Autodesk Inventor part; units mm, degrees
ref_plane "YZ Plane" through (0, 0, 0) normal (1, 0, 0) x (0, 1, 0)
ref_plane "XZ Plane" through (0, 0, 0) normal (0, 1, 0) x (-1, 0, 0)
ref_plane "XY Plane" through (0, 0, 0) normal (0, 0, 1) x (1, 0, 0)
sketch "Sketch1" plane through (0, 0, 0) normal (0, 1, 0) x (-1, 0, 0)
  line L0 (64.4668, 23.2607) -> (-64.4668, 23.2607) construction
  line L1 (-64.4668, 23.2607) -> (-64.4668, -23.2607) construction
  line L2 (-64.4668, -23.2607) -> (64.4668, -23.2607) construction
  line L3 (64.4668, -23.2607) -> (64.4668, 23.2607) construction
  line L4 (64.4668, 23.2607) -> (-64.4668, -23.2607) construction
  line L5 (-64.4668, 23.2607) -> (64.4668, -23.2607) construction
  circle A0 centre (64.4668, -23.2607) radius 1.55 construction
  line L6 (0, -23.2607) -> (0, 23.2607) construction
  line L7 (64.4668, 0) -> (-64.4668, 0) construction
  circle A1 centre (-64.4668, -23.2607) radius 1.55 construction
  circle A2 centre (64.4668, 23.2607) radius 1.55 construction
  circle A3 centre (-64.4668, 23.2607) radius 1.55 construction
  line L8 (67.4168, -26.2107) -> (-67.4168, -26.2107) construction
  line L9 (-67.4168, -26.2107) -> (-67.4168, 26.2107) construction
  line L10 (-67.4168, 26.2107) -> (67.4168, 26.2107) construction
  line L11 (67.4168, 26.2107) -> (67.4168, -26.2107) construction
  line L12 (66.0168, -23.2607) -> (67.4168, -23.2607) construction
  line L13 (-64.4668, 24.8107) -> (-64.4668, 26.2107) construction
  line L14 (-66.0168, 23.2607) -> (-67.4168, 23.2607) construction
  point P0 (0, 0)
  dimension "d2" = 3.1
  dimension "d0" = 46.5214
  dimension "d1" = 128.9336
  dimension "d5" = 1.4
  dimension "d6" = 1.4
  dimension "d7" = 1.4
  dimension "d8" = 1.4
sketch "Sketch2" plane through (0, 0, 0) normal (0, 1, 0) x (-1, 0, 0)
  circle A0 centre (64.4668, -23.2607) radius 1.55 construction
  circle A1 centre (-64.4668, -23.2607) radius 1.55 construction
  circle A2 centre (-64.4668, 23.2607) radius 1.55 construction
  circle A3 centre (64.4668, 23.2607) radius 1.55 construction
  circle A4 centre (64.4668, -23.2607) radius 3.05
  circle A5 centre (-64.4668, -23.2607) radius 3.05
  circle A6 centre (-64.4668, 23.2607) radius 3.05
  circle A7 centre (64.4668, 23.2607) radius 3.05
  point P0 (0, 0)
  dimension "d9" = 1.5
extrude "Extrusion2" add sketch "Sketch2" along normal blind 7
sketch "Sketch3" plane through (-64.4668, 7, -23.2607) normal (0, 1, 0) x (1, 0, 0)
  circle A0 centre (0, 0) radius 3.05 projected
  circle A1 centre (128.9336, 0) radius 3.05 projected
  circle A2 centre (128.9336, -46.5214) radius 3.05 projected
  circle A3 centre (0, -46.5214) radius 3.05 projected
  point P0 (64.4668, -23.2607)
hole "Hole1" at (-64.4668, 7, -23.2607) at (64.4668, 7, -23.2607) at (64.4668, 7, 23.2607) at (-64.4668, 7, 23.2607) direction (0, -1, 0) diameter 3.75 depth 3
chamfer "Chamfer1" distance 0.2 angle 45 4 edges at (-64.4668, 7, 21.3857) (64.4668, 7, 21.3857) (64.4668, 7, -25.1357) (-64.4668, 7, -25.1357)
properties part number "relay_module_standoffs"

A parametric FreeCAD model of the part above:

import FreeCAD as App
import Part
import Sketcher
from FreeCAD import Vector


def edges_at(feature, points):
    """Names of the edges that pass closest to the given points."""
    edges = feature.Shape.Edges
    near = lambda p: min(range(len(edges)), key=lambda i: edges[i].distToShape(Part.Vertex(*p))[0])
    return sorted({f"Edge{near(p) + 1}" for p in points})

doc = App.newDocument("Part")
body = doc.addObject("PartDesign::Body", "Body")
body.AllowCompound = True

# Sketch on XZ plane
sketch1 = body.newObject("Sketcher::SketchObject", "Sketch")
sketch1.AttachmentSupport = (doc.getObject("XZ_Plane"), [""])
sketch1.MapMode = "FlatFace"
sketch1.addGeometry([
    Part.Circle(Vector(-64.5, -23.3, 0), Vector(0, 0, 1), 3),
    Part.Circle(Vector(64.5, -23.3, 0), Vector(0, 0, 1), 3),
    Part.Circle(Vector(64.5, 23.3, 0), Vector(0, 0, 1), 3),
    Part.Circle(Vector(-64.5, 23.3, 0), Vector(0, 0, 1), 3),
], False)
sketch1.addConstraint([
    Sketcher.Constraint("Equal", 0, 1),
    Sketcher.Constraint("Equal", 1, 2),
    Sketcher.Constraint("Equal", 2, 3),
    Sketcher.Constraint("Symmetric", 0, 3, 2, 3, -1, 1),
    Sketcher.Constraint("Symmetric", 1, 3, 3, 3, -1, 1),
    Sketcher.Constraint("Symmetric", 0, 3, 1, 3, -2),
    Sketcher.Constraint("Diameter", 0, 6.1),
    Sketcher.Constraint("DistanceX", 0, 3, -1, 1, 64.4668),
    Sketcher.Constraint("DistanceY", 0, 3, -1, 1, 23.2607),
])
pad1 = body.newObject("PartDesign::Pad", "Pad")
pad1.Profile = sketch1
pad1.Length = 7
pad1.Reversed = True

# Sketch on XZ plane
sketch2 = body.newObject("Sketcher::SketchObject", "Sketch001")
sketch2.AttachmentSupport = (doc.getObject("XZ_Plane"), [""])
sketch2.MapMode = "FlatFace"
sketch2.AttachmentOffset = App.Placement(Vector(0, 0, -7), App.Rotation())
sketch2.addGeometry([
    Part.Circle(Vector(-64.5, -23.3, 0), Vector(0, 0, 1), 1.9),
    Part.Circle(Vector(64.5, -23.3, 0), Vector(0, 0, 1), 1.9),
    Part.Circle(Vector(64.5, 23.3, 0), Vector(0, 0, 1), 1.9),
    Part.Circle(Vector(-64.5, 23.3, 0), Vector(0, 0, 1), 1.9),
], False)
sketch2.addConstraint([
    Sketcher.Constraint("Equal", 0, 1),
    Sketcher.Constraint("Equal", 1, 2),
    Sketcher.Constraint("Equal", 2, 3),
    Sketcher.Constraint("Symmetric", 0, 3, 2, 3, -1, 1),
    Sketcher.Constraint("Symmetric", 1, 3, 3, 3, -1, 1),
    Sketcher.Constraint("Symmetric", 0, 3, 1, 3, -2),
    Sketcher.Constraint("Diameter", 0, 3.75),
    Sketcher.Constraint("DistanceX", 0, 3, -1, 1, 64.4668),
    Sketcher.Constraint("DistanceY", 0, 3, -1, 1, 23.2607),
])
doc.recompute()
hole = body.newObject("PartDesign::Hole", "Hole")
hole.Profile = sketch2
hole.ThreadType = "None"
hole.Diameter = 3.75
hole.DepthType = "Dimension"
hole.Depth = 3
hole.DrillPoint = "Flat"
hole.Reversed = True
doc.recompute()

chamfer = body.newObject("PartDesign::Chamfer", "Chamfer")
chamfer.Base = (hole, edges_at(hole, [
    (-64.467, 7, 21.386),
    (64.467, 7, 21.386),
    (64.467, 7, -25.136),
    (-64.467, 7, -25.136),
]))
chamfer.Size = 0.2

doc.recompute()
